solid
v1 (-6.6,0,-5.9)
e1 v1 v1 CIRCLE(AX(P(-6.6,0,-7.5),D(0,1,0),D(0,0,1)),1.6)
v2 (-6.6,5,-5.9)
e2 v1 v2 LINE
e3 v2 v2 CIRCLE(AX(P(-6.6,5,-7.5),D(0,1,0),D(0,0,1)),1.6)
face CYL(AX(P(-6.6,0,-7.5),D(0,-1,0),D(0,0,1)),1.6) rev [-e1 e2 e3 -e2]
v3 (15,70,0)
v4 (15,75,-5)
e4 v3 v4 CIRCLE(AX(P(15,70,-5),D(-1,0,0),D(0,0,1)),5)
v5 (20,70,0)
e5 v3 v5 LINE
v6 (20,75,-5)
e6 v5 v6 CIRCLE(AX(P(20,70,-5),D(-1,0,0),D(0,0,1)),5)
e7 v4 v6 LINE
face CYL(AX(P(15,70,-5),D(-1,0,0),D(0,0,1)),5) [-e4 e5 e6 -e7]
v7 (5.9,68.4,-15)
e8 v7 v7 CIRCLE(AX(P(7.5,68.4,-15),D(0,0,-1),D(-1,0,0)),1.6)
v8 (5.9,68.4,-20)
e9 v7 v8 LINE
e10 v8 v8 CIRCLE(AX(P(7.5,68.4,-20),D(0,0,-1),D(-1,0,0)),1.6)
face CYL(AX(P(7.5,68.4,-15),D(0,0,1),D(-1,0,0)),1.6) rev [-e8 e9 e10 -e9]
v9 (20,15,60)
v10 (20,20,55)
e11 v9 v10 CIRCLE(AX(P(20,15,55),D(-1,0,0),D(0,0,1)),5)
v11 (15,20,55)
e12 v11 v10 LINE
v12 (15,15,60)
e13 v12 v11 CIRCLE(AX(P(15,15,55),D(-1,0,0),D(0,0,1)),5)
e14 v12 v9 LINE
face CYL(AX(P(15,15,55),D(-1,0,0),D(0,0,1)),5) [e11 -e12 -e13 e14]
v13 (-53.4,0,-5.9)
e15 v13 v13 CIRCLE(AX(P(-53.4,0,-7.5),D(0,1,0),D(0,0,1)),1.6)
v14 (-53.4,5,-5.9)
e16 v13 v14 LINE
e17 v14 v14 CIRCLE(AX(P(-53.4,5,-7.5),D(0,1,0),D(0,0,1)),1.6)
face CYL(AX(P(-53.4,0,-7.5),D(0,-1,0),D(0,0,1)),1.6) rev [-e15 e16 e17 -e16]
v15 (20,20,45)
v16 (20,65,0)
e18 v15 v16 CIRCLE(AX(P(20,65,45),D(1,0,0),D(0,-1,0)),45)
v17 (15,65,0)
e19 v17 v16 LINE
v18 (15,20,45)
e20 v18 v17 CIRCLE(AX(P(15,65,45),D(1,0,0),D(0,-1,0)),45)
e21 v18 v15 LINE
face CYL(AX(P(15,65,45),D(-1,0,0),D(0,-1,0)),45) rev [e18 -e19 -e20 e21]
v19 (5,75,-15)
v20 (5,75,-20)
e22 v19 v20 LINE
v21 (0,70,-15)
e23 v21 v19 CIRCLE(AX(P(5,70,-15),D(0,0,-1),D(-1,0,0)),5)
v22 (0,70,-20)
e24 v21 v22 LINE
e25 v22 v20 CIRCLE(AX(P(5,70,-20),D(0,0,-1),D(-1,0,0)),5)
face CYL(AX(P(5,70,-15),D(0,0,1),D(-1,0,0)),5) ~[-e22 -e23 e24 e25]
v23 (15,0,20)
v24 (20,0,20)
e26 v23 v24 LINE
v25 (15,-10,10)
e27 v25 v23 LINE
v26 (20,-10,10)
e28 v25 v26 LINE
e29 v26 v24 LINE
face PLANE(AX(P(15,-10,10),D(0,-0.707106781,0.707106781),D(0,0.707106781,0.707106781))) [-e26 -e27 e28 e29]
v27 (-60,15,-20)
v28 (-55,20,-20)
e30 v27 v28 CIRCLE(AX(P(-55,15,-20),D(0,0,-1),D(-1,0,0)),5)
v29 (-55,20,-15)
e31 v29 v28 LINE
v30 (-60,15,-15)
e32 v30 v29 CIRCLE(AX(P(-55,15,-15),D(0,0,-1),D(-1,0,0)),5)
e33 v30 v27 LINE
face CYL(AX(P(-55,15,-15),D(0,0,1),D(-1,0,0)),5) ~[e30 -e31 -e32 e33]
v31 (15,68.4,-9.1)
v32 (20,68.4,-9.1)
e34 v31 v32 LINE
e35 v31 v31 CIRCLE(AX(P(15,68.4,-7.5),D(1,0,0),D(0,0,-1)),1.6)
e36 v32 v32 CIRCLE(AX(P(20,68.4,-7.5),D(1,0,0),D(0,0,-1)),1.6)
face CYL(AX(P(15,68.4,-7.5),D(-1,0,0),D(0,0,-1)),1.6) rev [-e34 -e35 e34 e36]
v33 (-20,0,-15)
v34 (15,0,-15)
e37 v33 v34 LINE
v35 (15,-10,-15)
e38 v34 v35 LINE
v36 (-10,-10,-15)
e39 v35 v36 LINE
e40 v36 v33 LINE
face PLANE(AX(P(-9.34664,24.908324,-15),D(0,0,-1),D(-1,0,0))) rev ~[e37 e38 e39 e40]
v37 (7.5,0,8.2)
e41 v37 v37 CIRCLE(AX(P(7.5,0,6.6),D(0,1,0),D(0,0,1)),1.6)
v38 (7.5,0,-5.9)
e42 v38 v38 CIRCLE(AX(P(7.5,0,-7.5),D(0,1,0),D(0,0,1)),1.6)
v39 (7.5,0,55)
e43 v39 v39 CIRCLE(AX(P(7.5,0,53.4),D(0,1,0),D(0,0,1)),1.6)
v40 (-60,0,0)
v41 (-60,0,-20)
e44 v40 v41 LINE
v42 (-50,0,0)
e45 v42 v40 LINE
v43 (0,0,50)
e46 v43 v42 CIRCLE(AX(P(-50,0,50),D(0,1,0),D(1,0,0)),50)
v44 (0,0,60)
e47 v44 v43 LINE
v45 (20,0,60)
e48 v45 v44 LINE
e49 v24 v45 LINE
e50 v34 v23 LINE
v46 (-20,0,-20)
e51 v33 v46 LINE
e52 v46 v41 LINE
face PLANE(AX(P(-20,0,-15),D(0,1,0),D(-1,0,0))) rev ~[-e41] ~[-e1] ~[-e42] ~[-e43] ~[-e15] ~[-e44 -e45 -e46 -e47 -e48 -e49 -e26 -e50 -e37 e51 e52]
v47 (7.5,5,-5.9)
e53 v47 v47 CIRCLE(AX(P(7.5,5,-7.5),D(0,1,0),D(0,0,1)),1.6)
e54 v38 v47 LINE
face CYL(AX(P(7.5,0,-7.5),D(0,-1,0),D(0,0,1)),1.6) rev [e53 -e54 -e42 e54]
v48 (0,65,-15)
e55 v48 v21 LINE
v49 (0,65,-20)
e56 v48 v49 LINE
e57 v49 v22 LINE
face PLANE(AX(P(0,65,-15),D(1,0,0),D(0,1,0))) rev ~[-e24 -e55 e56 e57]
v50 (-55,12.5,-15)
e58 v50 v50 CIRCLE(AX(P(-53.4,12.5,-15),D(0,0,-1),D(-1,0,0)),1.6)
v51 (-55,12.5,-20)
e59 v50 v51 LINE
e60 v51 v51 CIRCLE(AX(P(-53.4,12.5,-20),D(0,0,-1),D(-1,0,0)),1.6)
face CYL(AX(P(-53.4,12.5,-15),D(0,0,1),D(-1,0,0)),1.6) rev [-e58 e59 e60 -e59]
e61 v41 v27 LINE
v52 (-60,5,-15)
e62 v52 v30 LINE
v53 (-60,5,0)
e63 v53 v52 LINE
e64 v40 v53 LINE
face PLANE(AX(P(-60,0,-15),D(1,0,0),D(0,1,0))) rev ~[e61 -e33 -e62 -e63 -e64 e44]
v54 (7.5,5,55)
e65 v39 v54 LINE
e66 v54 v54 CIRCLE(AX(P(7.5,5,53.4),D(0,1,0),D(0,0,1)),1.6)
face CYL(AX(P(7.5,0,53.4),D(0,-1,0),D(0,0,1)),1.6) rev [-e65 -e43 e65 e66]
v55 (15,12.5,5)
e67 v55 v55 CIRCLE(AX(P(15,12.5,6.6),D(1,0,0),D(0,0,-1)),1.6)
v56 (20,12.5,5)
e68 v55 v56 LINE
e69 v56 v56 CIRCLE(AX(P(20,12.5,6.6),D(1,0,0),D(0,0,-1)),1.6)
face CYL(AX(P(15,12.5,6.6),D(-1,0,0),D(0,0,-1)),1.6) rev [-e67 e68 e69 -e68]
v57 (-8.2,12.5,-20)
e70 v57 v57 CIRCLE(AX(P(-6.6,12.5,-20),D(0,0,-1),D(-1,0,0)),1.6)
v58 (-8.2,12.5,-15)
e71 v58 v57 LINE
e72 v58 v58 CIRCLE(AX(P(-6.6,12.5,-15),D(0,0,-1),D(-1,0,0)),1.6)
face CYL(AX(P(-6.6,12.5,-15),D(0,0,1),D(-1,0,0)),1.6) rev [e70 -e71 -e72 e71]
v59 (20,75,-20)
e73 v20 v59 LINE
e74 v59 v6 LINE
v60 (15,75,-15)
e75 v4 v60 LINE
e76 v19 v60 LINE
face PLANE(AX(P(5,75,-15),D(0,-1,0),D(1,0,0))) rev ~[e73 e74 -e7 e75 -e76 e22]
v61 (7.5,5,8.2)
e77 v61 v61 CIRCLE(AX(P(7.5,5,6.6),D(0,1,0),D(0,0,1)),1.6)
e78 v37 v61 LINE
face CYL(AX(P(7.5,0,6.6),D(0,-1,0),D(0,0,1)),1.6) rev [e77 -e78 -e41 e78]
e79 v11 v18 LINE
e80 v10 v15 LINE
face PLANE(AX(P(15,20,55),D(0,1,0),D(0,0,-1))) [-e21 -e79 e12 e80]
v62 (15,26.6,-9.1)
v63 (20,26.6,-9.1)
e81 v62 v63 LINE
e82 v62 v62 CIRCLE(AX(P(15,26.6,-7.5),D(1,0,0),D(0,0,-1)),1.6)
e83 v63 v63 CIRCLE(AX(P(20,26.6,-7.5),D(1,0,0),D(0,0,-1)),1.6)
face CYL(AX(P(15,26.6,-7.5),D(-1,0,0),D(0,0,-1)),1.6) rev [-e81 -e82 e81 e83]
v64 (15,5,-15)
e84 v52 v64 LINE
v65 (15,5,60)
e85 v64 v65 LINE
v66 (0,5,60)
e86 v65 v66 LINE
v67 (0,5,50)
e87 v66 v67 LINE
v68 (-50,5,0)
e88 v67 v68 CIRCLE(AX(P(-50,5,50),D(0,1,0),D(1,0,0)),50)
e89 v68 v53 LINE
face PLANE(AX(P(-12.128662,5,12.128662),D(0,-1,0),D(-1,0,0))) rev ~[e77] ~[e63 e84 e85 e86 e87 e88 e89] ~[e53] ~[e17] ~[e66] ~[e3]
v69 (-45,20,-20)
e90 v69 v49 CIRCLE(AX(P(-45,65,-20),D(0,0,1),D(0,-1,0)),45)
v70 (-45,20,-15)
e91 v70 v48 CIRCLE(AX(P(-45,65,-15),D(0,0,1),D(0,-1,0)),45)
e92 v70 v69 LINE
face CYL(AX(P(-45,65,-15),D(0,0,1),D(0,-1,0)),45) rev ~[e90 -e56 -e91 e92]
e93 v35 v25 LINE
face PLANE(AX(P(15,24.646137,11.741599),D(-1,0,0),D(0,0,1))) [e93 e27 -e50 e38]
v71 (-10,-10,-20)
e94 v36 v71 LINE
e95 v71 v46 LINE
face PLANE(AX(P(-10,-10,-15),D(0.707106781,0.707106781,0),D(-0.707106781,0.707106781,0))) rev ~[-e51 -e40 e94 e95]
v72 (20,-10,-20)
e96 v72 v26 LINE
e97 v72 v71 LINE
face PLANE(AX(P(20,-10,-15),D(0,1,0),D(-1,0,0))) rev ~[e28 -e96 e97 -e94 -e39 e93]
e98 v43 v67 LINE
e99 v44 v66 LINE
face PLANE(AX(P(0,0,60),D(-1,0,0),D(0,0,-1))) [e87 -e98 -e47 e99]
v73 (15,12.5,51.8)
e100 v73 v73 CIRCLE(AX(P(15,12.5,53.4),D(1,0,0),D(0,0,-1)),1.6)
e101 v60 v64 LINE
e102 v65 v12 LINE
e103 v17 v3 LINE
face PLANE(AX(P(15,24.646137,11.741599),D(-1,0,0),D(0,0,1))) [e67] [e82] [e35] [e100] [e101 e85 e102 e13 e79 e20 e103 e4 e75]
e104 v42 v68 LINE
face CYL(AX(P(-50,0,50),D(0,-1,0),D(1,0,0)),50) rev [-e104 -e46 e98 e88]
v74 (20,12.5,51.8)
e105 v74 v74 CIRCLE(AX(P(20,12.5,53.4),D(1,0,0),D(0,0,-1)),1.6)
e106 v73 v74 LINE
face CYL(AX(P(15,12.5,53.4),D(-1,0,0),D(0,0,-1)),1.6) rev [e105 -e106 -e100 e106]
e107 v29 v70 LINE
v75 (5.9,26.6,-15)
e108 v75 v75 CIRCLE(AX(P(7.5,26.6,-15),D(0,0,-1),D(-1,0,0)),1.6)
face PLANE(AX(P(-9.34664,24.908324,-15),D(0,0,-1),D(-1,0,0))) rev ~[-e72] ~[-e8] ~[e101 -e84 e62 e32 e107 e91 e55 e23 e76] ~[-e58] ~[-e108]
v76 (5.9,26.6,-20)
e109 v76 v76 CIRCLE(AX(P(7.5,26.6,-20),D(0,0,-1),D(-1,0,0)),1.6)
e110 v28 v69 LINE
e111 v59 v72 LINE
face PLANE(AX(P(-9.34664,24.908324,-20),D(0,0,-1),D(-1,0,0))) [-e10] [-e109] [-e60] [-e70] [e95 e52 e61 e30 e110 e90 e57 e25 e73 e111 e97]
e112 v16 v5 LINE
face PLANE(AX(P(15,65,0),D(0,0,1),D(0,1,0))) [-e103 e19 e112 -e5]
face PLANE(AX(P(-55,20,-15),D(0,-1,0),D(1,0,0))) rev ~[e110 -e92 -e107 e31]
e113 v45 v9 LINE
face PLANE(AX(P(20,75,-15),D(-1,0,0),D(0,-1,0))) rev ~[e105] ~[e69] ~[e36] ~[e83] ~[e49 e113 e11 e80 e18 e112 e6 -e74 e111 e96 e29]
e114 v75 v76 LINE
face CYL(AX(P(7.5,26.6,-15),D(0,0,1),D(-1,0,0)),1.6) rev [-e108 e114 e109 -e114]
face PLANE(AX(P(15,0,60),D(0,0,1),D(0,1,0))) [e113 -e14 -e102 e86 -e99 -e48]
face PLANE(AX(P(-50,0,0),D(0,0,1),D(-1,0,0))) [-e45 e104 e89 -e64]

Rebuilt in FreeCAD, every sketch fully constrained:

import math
import FreeCAD as App
import Part
import Sketcher
from FreeCAD import Vector

doc = App.newDocument("Part")
body = doc.addObject("PartDesign::Body", "Body")

# Sketch on XZ plane
sketch1 = body.newObject("Sketcher::SketchObject", "Sketch")
sketch1.AttachmentSupport = (doc.getObject("XZ_Plane"), [""])
sketch1.MapMode = "FlatFace"
sketch1.addGeometry([
    Part.LineSegment(Vector(-60, 0, 0), Vector(-50, 0, 0)),  # 0
    Part.ArcOfCircle(Part.Circle(Vector(-50, 50, 0), Vector(0, 0, 1), 50), math.radians(-90), math.radians(0)),  # 1
    Part.LineSegment(Vector(0, 50, 0), Vector(0, 60, 0)),  # 2
    Part.LineSegment(Vector(0, 60, 0), Vector(15, 60, 0)),  # 3
    Part.LineSegment(Vector(15, 60, 0), Vector(15, -15, 0)),  # 4
    Part.LineSegment(Vector(15, -15, 0), Vector(-60, -15, 0)),  # 5
    Part.LineSegment(Vector(-60, -15, 0), Vector(-60, 0, 0)),  # 6
    Part.Circle(Vector(7.5, 53.4, 0), Vector(0, 0, 1), 1.6),  # 7
    Part.Circle(Vector(7.5, 6.6, 0), Vector(0, 0, 1), 1.6),  # 8
    Part.Circle(Vector(7.5, -7.5, 0), Vector(0, 0, 1), 1.6),  # 9
    Part.Circle(Vector(-6.6, -7.5, 0), Vector(0, 0, 1), 1.6),  # 10
    Part.Circle(Vector(-53.4, -7.5, 0), Vector(0, 0, 1), 1.6),  # 11
], False)
sketch1.addConstraint([
    Sketcher.Constraint("Tangent", 0, 2, 1, 1),
    Sketcher.Constraint("Tangent", 1, 2, 2, 1),
    Sketcher.Constraint("Coincident", 2, 2, 3, 1),
    Sketcher.Constraint("Coincident", 3, 2, 4, 1),
    Sketcher.Constraint("Coincident", 4, 2, 5, 1),
    Sketcher.Constraint("Coincident", 5, 2, 6, 1),
    Sketcher.Constraint("Coincident", 6, 2, 0, 1),
    Sketcher.Constraint("Horizontal", 0),
    Sketcher.Constraint("Vertical", 2),
    Sketcher.Constraint("Horizontal", 3),
    Sketcher.Constraint("Vertical", 4),
    Sketcher.Constraint("Horizontal", 5),
    Sketcher.Constraint("Vertical", 6),
    Sketcher.Constraint("Equal", 7, 8),
    Sketcher.Constraint("Equal", 8, 9),
    Sketcher.Constraint("Equal", 9, 10),
    Sketcher.Constraint("Equal", 10, 11),
    Sketcher.Constraint("PointOnObject", 0, 2, -1),
    Sketcher.Constraint("PointOnObject", 1, 2, -2),
    Sketcher.Constraint("Horizontal", 9, 3, 10, 3),
    Sketcher.Constraint("Horizontal", 10, 3, 11, 3),
    Sketcher.Constraint("Vertical", 7, 3, 8, 3),
    Sketcher.Constraint("Vertical", 8, 3, 9, 3),
    Sketcher.Constraint("Equal", 0, 2),
    Sketcher.Constraint("Equal", 5, 4),
    Sketcher.Constraint("Radius", 1, 50.0),
    Sketcher.Constraint("Diameter", 7, 3.2),
    Sketcher.Constraint("DistanceX", 0, 1, 0, 2, 10.0),
    Sketcher.Constraint("DistanceX", 3, 1, 3, 2, 15.0),
    Sketcher.Constraint("DistanceX", -1, 1, 7, 3, 7.5),
    Sketcher.Constraint("DistanceY", -1, 1, 7, 3, 53.4),
    Sketcher.Constraint("DistanceY", -1, 1, 8, 3, 6.6),
    Sketcher.Constraint("DistanceY", 9, 3, -1, 1, 7.5),
    Sketcher.Constraint("DistanceX", 10, 3, -1, 1, 6.6),
    Sketcher.Constraint("DistanceX", 11, 3, -1, 1, 53.4),
])
pad1 = body.newObject("PartDesign::Pad", "Pad")
pad1.Profile = sketch1
pad1.Length = 5
pad1.Reversed = True

# Sketch on YZ plane
sketch2 = body.newObject("Sketcher::SketchObject", "Sketch001")
sketch2.AttachmentSupport = (doc.getObject("YZ_Plane"), [""])
sketch2.MapMode = "FlatFace"
sketch2.AttachmentOffset = App.Placement(Vector(0, 0, 15), App.Rotation())
sketch2.addGeometry([
    Part.LineSegment(Vector(0, 20, 0), Vector(-10, 10, 0)),  # 0
    Part.LineSegment(Vector(-10, 10, 0), Vector(-10, -15, 0)),  # 1
    Part.LineSegment(Vector(-10, -15, 0), Vector(75, -15, 0)),  # 2
    Part.LineSegment(Vector(75, -15, 0), Vector(75, -5, 0)),  # 3
    Part.ArcOfCircle(Part.Circle(Vector(70, -5, 0), Vector(0, 0, 1), 5), math.radians(0), math.radians(90)),  # 4
    Part.LineSegment(Vector(70, 0, 0), Vector(65, 0, 0)),  # 5
    Part.ArcOfCircle(Part.Circle(Vector(65, 45, 0), Vector(0, 0, 1), 45), math.radians(-180), math.radians(-90)),  # 6
    Part.LineSegment(Vector(20, 45, 0), Vector(20, 55, 0)),  # 7
    Part.ArcOfCircle(Part.Circle(Vector(15, 55, 0), Vector(0, 0, 1), 5), math.radians(0), math.radians(90)),  # 8
    Part.LineSegment(Vector(15, 60, 0), Vector(0, 60, 0)),  # 9
    Part.LineSegment(Vector(0, 60, 0), Vector(0, 20, 0)),  # 10
    Part.Circle(Vector(12.5, 6.6, 0), Vector(0, 0, 1), 1.6),  # 11
    Part.Circle(Vector(26.6, -7.5, 0), Vector(0, 0, 1), 1.6),  # 12
    Part.Circle(Vector(12.5, 53.4, 0), Vector(0, 0, 1), 1.6),  # 13
    Part.Circle(Vector(68.4, -7.5, 0), Vector(0, 0, 1), 1.6),  # 14
], False)
sketch2.addConstraint([
    Sketcher.Constraint("Coincident", 0, 2, 1, 1),
    Sketcher.Constraint("Coincident", 1, 2, 2, 1),
    Sketcher.Constraint("Coincident", 2, 2, 3, 1),
    Sketcher.Constraint("Tangent", 3, 2, 4, 1),
    Sketcher.Constraint("Tangent", 4, 2, 5, 1),
    Sketcher.Constraint("Tangent", 5, 2, 6, 2),
    Sketcher.Constraint("Tangent", 6, 1, 7, 1),
    Sketcher.Constraint("Tangent", 7, 2, 8, 1),
    Sketcher.Constraint("Tangent", 8, 2, 9, 1),
    Sketcher.Constraint("Coincident", 9, 2, 10, 1),
    Sketcher.Constraint("Coincident", 10, 2, 0, 1),
    Sketcher.Constraint("Vertical", 1),
    Sketcher.Constraint("Horizontal", 2),
    Sketcher.Constraint("Vertical", 3),
    Sketcher.Constraint("Horizontal", 5),
    Sketcher.Constraint("Vertical", 7),
    Sketcher.Constraint("Horizontal", 9),
    Sketcher.Constraint("Vertical", 10),
    Sketcher.Constraint("Equal", 4, 8),
    Sketcher.Constraint("Equal", 11, 12),
    Sketcher.Constraint("Equal", 12, 13),
    Sketcher.Constraint("Equal", 13, 14),
    Sketcher.Constraint("PointOnObject", 4, 2, -1),
    Sketcher.Constraint("PointOnObject", 9, 2, -2),
    Sketcher.Constraint("Horizontal", 12, 3, 14, 3),
    Sketcher.Constraint("Vertical", 11, 3, 13, 3),
    Sketcher.Constraint("Equal", 3, 7),
    Sketcher.Constraint("Radius", 4, 5.0),
    Sketcher.Constraint("Radius", 6, 45.0),
    Sketcher.Constraint("Diameter", 11, 3.2),
    Sketcher.Constraint("DistanceX", 2, 1, 2, 2, 85.0),
    Sketcher.Constraint("DistanceX", 5, 2, 5, 1, 5.0),
    Sketcher.Constraint("DistanceX", 9, 2, 9, 1, 15.0),
    Sketcher.Constraint("DistanceY", 1, 2, 1, 1, 25.0),
    Sketcher.Constraint("DistanceY", 3, 1, 3, 2, 10.0),
    Sketcher.Constraint("DistanceY", 10, 2, 10, 1, 40.0),
    Sketcher.Constraint("DistanceX", -1, 1, 11, 3, 12.5),
    Sketcher.Constraint("DistanceY", -1, 1, 11, 3, 6.6),
    Sketcher.Constraint("DistanceX", -1, 1, 12, 3, 26.6),
    Sketcher.Constraint("DistanceY", 12, 3, -1, 1, 7.5),
    Sketcher.Constraint("DistanceY", -1, 1, 13, 3, 53.4),
    Sketcher.Constraint("DistanceX", -1, 1, 14, 3, 68.4),
])
pad2 = body.newObject("PartDesign::Pad", "Pad001")
pad2.Profile = sketch2
pad2.Length = 5

# Sketch on XY plane
sketch3 = body.newObject("Sketcher::SketchObject", "Sketch002")
sketch3.AttachmentSupport = (doc.getObject("XY_Plane"), [""])
sketch3.MapMode = "FlatFace"
sketch3.AttachmentOffset = App.Placement(Vector(0, 0, -15), App.Rotation())
sketch3.addGeometry([
    Part.LineSegment(Vector(20, -10, 0), Vector(-10, -10, 0)),  # 0
    Part.LineSegment(Vector(-10, -10, 0), Vector(-20, 0, 0)),  # 1
    Part.LineSegment(Vector(-20, 0, 0), Vector(-60, 0, 0)),  # 2
    Part.LineSegment(Vector(-60, 0, 0), Vector(-60, 15, 0)),  # 3
    Part.ArcOfCircle(Part.Circle(Vector(-55, 15, 0), Vector(0, 0, 1), 5), math.radians(90), math.radians(180)),  # 4
    Part.LineSegment(Vector(-55, 20, 0), Vector(-45, 20, 0)),  # 5
    Part.ArcOfCircle(Part.Circle(Vector(-45, 65, 0), Vector(0, 0, 1), 45), math.radians(-90), math.radians(0)),  # 6
    Part.LineSegment(Vector(0, 65, 0), Vector(0, 70, 0)),  # 7
    Part.ArcOfCircle(Part.Circle(Vector(5, 70, 0), Vector(0, 0, 1), 5), math.radians(90), math.radians(180)),  # 8
    Part.LineSegment(Vector(5, 75, 0), Vector(20, 75, 0)),  # 9
    Part.LineSegment(Vector(20, 75, 0), Vector(20, -10, 0)),  # 10
    Part.Circle(Vector(-6.6, 12.5, 0), Vector(0, 0, 1), 1.6),  # 11
    Part.Circle(Vector(7.5, 26.6, 0), Vector(0, 0, 1), 1.6),  # 12
    Part.Circle(Vector(-53.4, 12.5, 0), Vector(0, 0, 1), 1.6),  # 13
    Part.Circle(Vector(7.5, 68.4, 0), Vector(0, 0, 1), 1.6),  # 14
], False)
sketch3.addConstraint([
    Sketcher.Constraint("Coincident", 0, 2, 1, 1),
    Sketcher.Constraint("Coincident", 1, 2, 2, 1),
    Sketcher.Constraint("Coincident", 2, 2, 3, 1),
    Sketcher.Constraint("Tangent", 3, 2, 4, 2),
    Sketcher.Constraint("Tangent", 4, 1, 5, 1),
    Sketcher.Constraint("Tangent", 5, 2, 6, 1),
    Sketcher.Constraint("Tangent", 6, 2, 7, 1),
    Sketcher.Constraint("Tangent", 7, 2, 8, 2),
    Sketcher.Constraint("Tangent", 8, 1, 9, 1),
    Sketcher.Constraint("Coincident", 9, 2, 10, 1),
    Sketcher.Constraint("Coincident", 10, 2, 0, 1),
    Sketcher.Constraint("Horizontal", 0),
    Sketcher.Constraint("Horizontal", 2),
    Sketcher.Constraint("Vertical", 3),
    Sketcher.Constraint("Horizontal", 5),
    Sketcher.Constraint("Vertical", 7),
    Sketcher.Constraint("Horizontal", 9),
    Sketcher.Constraint("Vertical", 10),
    Sketcher.Constraint("Equal", 4, 8),
    Sketcher.Constraint("Equal", 11, 12),
    Sketcher.Constraint("Equal", 12, 13),
    Sketcher.Constraint("Equal", 13, 14),
    Sketcher.Constraint("PointOnObject", 1, 2, -1),
    Sketcher.Constraint("PointOnObject", 6, 2, -2),
    Sketcher.Constraint("Horizontal", 11, 3, 13, 3),
    Sketcher.Constraint("Vertical", 12, 3, 14, 3),
    Sketcher.Constraint("Equal", 9, 3),
    Sketcher.Constraint("Radius", 4, 5.0),
    Sketcher.Constraint("Radius", 6, 45.0),
    Sketcher.Constraint("Diameter", 11, 3.2),
    Sketcher.Constraint("DistanceX", 0, 2, 0, 1, 30.0),
    Sketcher.Constraint("DistanceX", 2, 2, 2, 1, 40.0),
    Sketcher.Constraint("DistanceX", 5, 1, 5, 2, 10.0),
    Sketcher.Constraint("DistanceX", 9, 1, 9, 2, 15.0),
    Sketcher.Constraint("DistanceY", 7, 1, 7, 2, 5.0),
    Sketcher.Constraint("DistanceY", 10, 2, 10, 1, 85.0),
    Sketcher.Constraint("DistanceX", 11, 3, -1, 1, 6.6),
    Sketcher.Constraint("DistanceY", -1, 1, 11, 3, 12.5),
    Sketcher.Constraint("DistanceX", -1, 1, 12, 3, 7.5),
    Sketcher.Constraint("DistanceY", -1, 1, 12, 3, 26.6),
    Sketcher.Constraint("DistanceX", 13, 3, -1, 1, 53.4),
    Sketcher.Constraint("DistanceY", -1, 1, 14, 3, 68.4),
])
pad3 = body.newObject("PartDesign::Pad", "Pad002")
pad3.Profile = sketch3
pad3.Length = 5
pad3.Reversed = True

doc.recompute()
